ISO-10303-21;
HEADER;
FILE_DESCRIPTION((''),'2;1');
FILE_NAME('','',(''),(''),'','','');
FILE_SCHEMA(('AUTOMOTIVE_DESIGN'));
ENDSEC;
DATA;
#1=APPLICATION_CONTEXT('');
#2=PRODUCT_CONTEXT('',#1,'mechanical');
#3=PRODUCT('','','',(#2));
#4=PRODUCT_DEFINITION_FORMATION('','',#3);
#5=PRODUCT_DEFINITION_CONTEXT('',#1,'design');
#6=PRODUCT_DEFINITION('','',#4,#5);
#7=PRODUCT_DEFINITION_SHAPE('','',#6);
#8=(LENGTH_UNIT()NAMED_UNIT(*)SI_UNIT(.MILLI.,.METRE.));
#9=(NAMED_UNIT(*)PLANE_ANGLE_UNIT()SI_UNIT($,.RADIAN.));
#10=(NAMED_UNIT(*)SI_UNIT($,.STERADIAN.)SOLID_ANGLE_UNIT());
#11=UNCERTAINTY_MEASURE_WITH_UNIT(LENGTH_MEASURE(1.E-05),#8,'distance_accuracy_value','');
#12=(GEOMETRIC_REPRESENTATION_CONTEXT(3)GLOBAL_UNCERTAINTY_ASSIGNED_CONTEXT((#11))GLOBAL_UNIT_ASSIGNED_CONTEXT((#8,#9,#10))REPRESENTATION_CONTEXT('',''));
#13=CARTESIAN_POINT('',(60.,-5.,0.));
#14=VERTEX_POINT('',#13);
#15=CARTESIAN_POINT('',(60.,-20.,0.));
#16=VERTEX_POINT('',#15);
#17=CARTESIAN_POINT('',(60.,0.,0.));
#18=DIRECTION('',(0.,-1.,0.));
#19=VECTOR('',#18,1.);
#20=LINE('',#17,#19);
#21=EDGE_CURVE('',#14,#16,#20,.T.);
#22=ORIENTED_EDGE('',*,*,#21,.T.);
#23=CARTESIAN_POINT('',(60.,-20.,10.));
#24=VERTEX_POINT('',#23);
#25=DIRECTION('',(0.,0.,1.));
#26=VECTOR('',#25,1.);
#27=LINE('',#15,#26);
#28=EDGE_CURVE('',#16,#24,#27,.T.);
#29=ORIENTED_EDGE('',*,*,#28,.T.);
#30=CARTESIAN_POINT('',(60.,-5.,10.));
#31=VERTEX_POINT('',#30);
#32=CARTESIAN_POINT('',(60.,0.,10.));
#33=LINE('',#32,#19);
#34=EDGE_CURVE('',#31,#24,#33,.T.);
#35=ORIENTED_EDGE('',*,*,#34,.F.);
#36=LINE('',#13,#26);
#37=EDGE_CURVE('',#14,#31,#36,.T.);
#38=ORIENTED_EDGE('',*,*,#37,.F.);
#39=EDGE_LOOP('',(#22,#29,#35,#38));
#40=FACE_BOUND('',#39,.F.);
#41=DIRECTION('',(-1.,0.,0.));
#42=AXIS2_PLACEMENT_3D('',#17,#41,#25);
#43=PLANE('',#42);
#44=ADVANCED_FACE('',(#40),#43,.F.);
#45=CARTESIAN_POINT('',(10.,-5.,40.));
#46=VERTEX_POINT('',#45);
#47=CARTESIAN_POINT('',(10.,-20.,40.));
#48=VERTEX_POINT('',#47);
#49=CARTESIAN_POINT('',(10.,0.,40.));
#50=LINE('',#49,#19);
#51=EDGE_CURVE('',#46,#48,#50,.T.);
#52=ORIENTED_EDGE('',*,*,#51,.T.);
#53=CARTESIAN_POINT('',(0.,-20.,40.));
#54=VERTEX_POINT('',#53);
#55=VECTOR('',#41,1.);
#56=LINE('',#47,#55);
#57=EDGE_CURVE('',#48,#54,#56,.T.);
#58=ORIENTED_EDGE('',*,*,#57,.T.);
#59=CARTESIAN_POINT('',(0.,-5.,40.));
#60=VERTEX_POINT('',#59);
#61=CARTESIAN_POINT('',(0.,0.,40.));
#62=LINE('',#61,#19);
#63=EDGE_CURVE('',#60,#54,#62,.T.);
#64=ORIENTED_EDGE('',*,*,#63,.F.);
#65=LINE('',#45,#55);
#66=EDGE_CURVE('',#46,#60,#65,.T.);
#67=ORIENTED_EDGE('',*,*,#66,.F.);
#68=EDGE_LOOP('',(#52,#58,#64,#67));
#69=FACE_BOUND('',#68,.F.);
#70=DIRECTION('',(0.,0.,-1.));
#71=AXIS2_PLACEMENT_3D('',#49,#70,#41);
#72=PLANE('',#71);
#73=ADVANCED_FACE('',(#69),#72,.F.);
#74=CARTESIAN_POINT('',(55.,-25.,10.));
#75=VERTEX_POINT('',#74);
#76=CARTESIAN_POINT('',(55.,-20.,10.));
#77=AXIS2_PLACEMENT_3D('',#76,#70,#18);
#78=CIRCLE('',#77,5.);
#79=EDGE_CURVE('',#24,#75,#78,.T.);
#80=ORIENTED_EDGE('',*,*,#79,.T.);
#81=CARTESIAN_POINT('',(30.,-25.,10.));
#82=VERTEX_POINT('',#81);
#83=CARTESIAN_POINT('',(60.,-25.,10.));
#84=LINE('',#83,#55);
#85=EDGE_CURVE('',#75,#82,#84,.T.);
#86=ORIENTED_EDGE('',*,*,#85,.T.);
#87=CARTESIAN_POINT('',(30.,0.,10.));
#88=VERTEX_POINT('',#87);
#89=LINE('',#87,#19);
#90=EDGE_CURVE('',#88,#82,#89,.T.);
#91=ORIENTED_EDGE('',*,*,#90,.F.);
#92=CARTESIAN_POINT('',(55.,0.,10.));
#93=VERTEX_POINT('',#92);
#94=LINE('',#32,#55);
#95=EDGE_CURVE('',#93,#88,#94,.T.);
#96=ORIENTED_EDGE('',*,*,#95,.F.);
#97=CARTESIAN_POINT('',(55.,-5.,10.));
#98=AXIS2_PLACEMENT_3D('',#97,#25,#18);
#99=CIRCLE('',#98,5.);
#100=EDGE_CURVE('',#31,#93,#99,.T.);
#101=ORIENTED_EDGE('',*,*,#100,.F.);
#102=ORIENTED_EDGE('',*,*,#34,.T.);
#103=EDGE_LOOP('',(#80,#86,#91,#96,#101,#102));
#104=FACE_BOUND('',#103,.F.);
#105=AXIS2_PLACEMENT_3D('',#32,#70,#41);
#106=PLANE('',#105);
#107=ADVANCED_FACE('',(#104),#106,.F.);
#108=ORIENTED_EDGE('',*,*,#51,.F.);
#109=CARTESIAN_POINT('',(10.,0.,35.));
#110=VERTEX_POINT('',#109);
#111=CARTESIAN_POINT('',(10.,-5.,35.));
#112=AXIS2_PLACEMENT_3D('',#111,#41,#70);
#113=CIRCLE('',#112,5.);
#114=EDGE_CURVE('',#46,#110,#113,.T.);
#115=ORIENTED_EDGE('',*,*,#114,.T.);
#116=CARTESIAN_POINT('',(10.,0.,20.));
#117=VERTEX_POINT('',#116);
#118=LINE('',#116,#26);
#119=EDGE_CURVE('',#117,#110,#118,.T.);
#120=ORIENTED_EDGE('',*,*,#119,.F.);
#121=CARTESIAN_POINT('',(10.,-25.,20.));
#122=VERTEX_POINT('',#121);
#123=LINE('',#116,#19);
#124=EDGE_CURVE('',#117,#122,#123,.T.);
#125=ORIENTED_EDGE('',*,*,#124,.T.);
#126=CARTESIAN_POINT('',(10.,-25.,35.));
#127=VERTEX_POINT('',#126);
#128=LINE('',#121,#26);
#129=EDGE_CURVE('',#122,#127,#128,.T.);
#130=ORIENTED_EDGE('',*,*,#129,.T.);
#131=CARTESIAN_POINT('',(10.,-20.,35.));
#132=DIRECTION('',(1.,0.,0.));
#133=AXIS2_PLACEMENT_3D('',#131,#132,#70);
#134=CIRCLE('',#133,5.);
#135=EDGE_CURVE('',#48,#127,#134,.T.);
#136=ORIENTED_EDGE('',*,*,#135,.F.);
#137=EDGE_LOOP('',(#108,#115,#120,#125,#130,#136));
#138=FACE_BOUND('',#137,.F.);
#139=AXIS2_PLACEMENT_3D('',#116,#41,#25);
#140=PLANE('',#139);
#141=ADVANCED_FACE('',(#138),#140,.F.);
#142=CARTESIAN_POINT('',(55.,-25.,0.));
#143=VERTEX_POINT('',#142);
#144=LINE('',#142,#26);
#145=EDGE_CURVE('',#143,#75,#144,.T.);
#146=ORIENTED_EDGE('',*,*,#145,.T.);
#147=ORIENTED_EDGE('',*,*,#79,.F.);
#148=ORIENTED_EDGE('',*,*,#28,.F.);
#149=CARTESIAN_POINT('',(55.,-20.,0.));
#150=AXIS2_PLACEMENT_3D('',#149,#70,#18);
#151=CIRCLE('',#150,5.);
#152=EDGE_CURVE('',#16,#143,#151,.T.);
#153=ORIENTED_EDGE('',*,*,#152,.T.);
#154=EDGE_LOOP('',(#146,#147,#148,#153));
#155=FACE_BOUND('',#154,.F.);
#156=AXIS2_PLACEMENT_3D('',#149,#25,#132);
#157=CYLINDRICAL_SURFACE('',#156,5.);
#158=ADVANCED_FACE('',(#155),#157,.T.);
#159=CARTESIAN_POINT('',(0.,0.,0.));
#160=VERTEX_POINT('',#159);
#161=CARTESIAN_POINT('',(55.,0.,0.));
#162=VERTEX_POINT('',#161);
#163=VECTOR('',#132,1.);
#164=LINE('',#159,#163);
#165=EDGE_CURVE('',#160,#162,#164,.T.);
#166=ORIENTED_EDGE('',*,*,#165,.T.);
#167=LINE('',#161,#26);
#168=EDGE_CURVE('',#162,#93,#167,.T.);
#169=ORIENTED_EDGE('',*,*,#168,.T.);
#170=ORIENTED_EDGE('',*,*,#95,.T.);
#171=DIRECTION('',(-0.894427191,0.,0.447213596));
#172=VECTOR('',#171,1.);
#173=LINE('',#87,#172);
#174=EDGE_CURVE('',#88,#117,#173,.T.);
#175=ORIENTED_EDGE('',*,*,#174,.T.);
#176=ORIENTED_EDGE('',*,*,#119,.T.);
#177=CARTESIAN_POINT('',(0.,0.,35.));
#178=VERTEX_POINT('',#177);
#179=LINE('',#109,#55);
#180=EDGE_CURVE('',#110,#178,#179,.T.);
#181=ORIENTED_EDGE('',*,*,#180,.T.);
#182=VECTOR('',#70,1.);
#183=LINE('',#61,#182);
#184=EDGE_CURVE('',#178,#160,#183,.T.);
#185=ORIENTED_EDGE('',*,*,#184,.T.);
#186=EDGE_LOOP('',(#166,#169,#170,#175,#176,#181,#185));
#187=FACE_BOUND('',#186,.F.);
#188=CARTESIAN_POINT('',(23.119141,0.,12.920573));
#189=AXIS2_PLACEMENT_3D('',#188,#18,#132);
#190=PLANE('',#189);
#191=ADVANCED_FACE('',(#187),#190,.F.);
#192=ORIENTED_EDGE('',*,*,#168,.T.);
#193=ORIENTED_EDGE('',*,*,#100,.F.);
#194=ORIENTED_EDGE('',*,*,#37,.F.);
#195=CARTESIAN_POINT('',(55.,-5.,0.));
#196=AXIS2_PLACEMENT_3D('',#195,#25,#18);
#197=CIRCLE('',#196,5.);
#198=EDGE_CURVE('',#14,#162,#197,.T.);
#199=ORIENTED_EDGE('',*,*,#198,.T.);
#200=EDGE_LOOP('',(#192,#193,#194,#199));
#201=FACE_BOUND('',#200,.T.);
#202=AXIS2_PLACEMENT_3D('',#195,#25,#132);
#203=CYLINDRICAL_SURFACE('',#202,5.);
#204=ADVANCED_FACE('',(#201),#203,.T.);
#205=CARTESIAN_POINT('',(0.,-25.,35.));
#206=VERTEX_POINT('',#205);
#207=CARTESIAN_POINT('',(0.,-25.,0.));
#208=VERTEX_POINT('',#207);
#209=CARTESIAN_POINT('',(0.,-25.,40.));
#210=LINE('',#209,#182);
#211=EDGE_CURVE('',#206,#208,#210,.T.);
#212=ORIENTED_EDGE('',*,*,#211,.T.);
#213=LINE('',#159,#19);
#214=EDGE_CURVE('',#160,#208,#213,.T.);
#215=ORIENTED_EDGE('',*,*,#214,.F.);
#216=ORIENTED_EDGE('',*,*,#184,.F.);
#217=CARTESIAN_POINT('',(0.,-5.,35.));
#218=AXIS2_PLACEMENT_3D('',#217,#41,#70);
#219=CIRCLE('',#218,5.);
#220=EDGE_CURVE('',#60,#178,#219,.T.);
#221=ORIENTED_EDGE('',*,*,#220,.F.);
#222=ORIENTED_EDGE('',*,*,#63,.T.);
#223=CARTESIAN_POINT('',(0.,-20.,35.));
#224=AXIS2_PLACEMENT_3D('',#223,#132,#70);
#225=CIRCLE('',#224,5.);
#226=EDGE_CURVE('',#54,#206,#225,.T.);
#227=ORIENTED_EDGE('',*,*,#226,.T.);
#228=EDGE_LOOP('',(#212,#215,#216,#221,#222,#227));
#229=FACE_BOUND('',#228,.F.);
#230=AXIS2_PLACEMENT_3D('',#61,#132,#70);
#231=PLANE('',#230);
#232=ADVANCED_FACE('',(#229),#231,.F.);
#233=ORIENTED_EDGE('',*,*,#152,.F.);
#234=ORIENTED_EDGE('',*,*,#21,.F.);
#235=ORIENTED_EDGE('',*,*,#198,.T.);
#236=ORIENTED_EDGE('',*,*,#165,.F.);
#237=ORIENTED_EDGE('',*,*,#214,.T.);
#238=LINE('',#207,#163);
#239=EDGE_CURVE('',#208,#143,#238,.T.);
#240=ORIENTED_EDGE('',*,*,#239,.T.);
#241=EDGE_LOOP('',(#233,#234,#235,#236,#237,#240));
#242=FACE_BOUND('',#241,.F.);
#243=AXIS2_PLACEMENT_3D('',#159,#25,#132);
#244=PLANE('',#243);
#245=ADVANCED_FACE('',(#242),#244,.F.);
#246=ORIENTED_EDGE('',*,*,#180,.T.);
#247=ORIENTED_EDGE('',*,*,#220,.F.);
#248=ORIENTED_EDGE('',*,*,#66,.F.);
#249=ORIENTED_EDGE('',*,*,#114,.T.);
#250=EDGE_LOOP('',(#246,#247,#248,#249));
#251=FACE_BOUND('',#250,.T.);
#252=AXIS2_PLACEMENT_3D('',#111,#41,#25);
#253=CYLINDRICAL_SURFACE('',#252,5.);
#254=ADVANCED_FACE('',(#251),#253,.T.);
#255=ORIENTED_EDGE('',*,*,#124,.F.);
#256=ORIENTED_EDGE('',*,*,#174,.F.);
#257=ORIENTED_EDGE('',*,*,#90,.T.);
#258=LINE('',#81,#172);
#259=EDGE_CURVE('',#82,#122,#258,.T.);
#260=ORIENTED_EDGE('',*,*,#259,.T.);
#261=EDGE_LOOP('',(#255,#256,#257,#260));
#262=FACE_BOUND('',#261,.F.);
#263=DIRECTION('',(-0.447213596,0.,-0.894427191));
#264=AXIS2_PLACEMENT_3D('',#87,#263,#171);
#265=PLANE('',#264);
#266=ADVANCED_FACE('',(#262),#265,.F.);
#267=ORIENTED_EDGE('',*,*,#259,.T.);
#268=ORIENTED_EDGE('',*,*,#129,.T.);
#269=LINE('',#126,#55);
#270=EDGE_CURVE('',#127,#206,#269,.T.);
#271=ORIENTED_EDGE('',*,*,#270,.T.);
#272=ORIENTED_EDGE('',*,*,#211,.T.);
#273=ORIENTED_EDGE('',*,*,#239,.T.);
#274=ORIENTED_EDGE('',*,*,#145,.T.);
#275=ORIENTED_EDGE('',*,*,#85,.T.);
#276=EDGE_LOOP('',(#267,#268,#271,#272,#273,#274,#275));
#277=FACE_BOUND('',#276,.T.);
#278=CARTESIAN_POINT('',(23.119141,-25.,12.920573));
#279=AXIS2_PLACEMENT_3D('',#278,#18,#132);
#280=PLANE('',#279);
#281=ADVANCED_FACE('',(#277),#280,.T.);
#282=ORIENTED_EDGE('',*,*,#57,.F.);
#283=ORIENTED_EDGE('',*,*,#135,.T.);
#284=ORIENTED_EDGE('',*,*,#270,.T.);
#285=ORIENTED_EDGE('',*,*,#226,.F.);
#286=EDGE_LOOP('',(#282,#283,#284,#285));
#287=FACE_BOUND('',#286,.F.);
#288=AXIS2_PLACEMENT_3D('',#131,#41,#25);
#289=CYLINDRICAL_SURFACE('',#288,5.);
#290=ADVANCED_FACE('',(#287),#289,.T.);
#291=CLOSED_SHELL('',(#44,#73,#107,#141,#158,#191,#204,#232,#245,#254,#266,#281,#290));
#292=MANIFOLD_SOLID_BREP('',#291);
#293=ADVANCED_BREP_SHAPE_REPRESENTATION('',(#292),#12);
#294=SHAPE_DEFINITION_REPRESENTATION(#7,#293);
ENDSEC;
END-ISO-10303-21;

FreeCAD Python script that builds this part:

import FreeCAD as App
import Part
import Sketcher
from FreeCAD import Vector


def edges_at(feature, points):
    """Names of the edges that pass closest to the given points."""
    edges = feature.Shape.Edges
    near = lambda p: min(range(len(edges)), key=lambda i: edges[i].distToShape(Part.Vertex(*p))[0])
    return sorted({f"Edge{near(p) + 1}" for p in points})


def add_polygon(sketch, points):
    """Adds a closed chain of lines whose ends are joined by coincident constraints."""
    first, n = sketch.GeometryCount, len(points)
    for a, b in zip(points, points[1:] + points[:1]):
        sketch.addGeometry(Part.LineSegment(App.Vector(*a, 0), App.Vector(*b, 0)), False)
    for i in range(n):
        sketch.addConstraint(Sketcher.Constraint("Coincident", first + i, 2, first + (i + 1) % n, 1))

doc = App.newDocument("Part")
body = doc.addObject("PartDesign::Body", "Body")

# Sketch on XZ plane
sketch1 = doc.addObject("Sketcher::SketchObject", "Sketch")
body.addObject(sketch1)
sketch1.AttachmentSupport = (doc.XZ_Plane, [""])
sketch1.MapMode = "FlatFace"
add_polygon(sketch1, [(0, 40), (0, 0), (60, 0), (60, 10), (30, 10), (10, 20), (10, 40)])  # lines 0-6
sketch1.addConstraint(Sketcher.Constraint("Vertical", 0))
sketch1.addConstraint(Sketcher.Constraint("Horizontal", 1))
sketch1.addConstraint(Sketcher.Constraint("Vertical", 2))
sketch1.addConstraint(Sketcher.Constraint("Horizontal", 3))
sketch1.addConstraint(Sketcher.Constraint("Vertical", 5))
sketch1.addConstraint(Sketcher.Constraint("Horizontal", 6))
sketch1.addConstraint(Sketcher.Constraint("Coincident", 0, 2, -1, 1))
sketch1.addConstraint(Sketcher.Constraint("Equal", 6, 2))
sketch1.addConstraint(Sketcher.Constraint("DistanceX", 1, 1, 1, 2, 60.0))
sketch1.addConstraint(Sketcher.Constraint("DistanceX", 3, 2, 3, 1, 30.0))
sketch1.addConstraint(Sketcher.Constraint("DistanceX", 6, 2, 6, 1, 10.0))
sketch1.addConstraint(Sketcher.Constraint("DistanceY", 0, 2, 0, 1, 40.0))
sketch1.addConstraint(Sketcher.Constraint("DistanceY", 5, 1, 5, 2, 20.0))
pad1 = doc.addObject("PartDesign::Pad", "Pad")
body.addObject(pad1)
pad1.Profile = sketch1
pad1.Length = 25
doc.recompute()

fillet = doc.addObject("PartDesign::Fillet", "Fillet")
body.addObject(fillet)
fillet.Base = (pad1, edges_at(pad1, [
    (5, -25, 40),
    (5, 0, 40),
    (60, -25, 5),
    (60, 0, 5),
]))
fillet.Radius = 5

doc.recompute()
